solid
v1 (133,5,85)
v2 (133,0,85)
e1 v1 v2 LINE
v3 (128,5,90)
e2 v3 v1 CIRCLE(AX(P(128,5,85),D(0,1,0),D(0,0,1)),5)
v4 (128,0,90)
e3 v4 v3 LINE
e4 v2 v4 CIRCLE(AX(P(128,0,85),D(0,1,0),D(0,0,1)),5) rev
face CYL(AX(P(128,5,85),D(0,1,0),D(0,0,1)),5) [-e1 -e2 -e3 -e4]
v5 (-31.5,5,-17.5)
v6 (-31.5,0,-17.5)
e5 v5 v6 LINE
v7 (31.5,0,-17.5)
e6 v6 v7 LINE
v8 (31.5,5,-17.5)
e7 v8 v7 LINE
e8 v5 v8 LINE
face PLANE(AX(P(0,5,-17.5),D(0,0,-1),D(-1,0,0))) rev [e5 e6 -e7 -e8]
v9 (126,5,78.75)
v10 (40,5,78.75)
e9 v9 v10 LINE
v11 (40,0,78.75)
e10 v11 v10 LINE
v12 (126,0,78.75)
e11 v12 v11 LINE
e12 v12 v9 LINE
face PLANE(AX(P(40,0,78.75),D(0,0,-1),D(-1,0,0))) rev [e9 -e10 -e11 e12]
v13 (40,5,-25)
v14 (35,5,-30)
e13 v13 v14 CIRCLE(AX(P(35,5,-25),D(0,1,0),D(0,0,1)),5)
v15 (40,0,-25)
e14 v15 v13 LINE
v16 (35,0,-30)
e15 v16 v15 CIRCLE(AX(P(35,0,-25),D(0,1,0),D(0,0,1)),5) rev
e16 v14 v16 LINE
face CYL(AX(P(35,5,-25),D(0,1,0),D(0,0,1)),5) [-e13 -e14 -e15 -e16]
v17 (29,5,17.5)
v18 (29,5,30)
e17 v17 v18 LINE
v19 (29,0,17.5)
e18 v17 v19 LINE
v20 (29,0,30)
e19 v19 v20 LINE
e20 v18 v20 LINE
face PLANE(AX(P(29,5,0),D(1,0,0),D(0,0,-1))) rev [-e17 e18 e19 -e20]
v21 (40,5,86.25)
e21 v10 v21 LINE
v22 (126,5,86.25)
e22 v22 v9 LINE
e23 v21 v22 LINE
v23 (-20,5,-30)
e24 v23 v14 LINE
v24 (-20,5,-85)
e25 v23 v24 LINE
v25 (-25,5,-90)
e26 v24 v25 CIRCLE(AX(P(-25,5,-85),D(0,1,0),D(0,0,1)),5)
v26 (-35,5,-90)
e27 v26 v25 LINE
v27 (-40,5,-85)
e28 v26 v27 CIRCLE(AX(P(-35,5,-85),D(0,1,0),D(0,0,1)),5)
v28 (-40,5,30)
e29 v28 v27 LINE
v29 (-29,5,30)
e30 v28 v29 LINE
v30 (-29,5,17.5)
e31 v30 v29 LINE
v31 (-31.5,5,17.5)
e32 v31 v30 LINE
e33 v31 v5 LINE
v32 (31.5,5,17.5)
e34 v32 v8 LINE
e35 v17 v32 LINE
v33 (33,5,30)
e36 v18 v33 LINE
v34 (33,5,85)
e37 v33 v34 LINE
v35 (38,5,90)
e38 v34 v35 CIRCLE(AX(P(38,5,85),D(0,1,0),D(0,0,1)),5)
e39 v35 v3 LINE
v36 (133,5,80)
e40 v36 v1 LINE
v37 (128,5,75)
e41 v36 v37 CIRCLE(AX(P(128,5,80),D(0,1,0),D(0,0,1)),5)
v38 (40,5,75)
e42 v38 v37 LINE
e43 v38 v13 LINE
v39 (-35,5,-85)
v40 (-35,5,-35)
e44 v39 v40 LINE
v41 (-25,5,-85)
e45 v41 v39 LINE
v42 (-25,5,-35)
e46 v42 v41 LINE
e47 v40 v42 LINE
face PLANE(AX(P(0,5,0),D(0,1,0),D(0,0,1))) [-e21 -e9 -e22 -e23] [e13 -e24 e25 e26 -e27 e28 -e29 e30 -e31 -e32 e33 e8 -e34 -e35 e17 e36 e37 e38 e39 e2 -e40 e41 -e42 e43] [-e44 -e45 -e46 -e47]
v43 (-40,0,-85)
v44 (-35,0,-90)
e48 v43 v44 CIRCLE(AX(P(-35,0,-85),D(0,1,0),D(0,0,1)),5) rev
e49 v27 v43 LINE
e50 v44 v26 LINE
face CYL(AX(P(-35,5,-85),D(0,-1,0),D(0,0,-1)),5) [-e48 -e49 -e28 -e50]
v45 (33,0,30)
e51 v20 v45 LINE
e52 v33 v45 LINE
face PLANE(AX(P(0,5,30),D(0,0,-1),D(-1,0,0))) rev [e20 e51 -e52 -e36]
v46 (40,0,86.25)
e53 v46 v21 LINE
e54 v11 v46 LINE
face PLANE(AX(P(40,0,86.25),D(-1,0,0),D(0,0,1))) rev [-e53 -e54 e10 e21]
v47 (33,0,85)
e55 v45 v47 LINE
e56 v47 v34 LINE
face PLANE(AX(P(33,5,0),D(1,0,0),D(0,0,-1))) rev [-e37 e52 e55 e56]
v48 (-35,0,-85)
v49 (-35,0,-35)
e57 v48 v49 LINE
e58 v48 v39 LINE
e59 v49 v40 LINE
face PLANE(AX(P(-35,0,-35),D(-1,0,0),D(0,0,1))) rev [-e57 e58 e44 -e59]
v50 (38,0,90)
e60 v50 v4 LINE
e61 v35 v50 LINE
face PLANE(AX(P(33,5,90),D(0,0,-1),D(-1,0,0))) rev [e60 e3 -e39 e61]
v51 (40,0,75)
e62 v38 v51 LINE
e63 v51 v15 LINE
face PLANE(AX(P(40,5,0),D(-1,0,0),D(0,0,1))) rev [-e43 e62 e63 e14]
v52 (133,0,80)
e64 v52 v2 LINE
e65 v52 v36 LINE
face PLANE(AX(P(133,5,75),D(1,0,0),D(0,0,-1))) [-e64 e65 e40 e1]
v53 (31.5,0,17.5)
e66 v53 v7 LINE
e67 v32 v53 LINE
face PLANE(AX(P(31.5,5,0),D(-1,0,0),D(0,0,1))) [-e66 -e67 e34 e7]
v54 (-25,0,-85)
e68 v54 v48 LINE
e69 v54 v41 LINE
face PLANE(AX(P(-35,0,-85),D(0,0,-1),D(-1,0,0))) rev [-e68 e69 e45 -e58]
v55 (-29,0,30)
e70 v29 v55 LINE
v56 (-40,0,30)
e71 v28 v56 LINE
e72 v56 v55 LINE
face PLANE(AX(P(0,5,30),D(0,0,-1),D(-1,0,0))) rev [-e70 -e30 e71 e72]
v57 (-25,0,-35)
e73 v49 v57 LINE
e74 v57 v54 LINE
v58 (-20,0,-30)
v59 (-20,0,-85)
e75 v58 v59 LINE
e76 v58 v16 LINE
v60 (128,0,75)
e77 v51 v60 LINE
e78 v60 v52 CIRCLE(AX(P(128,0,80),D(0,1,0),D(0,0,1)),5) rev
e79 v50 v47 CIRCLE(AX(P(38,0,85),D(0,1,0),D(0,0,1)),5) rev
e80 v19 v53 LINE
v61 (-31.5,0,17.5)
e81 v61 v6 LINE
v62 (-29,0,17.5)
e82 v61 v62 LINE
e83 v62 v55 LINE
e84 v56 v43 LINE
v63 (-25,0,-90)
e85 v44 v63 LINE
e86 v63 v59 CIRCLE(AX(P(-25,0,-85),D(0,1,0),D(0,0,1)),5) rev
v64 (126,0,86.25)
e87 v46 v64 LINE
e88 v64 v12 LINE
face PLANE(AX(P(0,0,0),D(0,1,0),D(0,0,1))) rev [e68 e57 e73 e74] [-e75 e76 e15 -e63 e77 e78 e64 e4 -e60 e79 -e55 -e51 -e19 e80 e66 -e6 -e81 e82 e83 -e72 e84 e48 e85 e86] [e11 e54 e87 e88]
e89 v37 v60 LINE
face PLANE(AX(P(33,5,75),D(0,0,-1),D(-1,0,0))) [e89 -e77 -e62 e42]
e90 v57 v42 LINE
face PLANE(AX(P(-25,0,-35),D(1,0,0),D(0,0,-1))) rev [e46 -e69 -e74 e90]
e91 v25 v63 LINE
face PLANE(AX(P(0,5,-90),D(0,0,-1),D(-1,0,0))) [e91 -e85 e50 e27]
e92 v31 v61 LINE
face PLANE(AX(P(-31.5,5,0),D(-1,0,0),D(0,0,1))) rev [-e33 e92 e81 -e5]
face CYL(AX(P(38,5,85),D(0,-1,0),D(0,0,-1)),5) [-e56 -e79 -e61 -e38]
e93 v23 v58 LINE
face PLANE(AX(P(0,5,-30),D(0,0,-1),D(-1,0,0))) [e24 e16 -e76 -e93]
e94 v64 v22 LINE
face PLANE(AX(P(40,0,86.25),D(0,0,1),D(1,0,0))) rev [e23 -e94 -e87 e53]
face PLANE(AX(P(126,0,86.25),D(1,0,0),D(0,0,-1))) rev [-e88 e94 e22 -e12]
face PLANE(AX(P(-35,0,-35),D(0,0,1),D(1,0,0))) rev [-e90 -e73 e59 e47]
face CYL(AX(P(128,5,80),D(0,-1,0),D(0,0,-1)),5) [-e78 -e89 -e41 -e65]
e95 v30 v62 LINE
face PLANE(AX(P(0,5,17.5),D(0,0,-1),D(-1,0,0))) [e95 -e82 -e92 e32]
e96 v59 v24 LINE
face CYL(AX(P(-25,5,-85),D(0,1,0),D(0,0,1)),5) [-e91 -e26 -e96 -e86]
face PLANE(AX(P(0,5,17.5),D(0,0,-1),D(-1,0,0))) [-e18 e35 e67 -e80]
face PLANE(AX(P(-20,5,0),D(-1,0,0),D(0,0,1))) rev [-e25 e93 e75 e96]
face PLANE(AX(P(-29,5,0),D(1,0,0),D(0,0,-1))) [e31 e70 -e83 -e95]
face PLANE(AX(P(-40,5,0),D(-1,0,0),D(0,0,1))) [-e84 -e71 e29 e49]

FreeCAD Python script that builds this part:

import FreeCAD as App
import Part
import Sketcher

V = App.Vector
Q = App.Units.Quantity


def edges_at(feature, points):
    """Names of the edges that pass closest to the given points."""
    edges = feature.Shape.Edges
    near = lambda p: min(range(len(edges)), key=lambda i: edges[i].distToShape(Part.Vertex(*p))[0])
    return sorted({f"Edge{near(p) + 1}" for p in points})

doc = App.newDocument("Part")
body = doc.addObject("PartDesign::Body", "Body")

# Sketch on XZ plane
sketch1 = doc.addObject("Sketcher::SketchObject", "Sketch")
body.addObject(sketch1)
sketch1.AttachmentSupport = (doc.XZ_Plane, [""])
sketch1.MapMode = "FlatFace"
sketch1.addGeometry([
    Part.LineSegment(V(-29, 17.5, 0), V(-31.5, 17.5, 0)),  # 0
    Part.LineSegment(V(-31.5, 17.5, 0), V(-31.5, -17.5, 0)),  # 1
    Part.LineSegment(V(-31.5, -17.5, 0), V(31.5, -17.5, 0)),  # 2
    Part.LineSegment(V(31.5, -17.5, 0), V(31.5, 17.5, 0)),  # 3
    Part.LineSegment(V(31.5, 17.5, 0), V(29, 17.5, 0)),  # 4
    Part.LineSegment(V(29, 17.5, 0), V(29, 30, 0)),  # 5
    Part.LineSegment(V(29, 30, 0), V(33, 30, 0)),  # 6
    Part.LineSegment(V(33, 30, 0), V(33, 90, 0)),  # 7
    Part.LineSegment(V(33, 90, 0), V(133, 90, 0)),  # 8
    Part.LineSegment(V(133, 90, 0), V(133, 75, 0)),  # 9
    Part.LineSegment(V(133, 75, 0), V(40, 75, 0)),  # 10
    Part.LineSegment(V(40, 75, 0), V(40, -30, 0)),  # 11
    Part.LineSegment(V(40, -30, 0), V(-20, -30, 0)),  # 12
    Part.LineSegment(V(-20, -30, 0), V(-20, -90, 0)),  # 13
    Part.LineSegment(V(-20, -90, 0), V(-40, -90, 0)),  # 14
    Part.LineSegment(V(-40, -90, 0), V(-40, 30, 0)),  # 15
    Part.LineSegment(V(-40, 30, 0), V(-29, 30, 0)),  # 16
    Part.LineSegment(V(-29, 30, 0), V(-29, 17.5, 0)),  # 17
], False)
sketch1.addConstraint([
    Sketcher.Constraint("Coincident", 0, 2, 1, 1),
    Sketcher.Constraint("Coincident", 1, 2, 2, 1),
    Sketcher.Constraint("Coincident", 2, 2, 3, 1),
    Sketcher.Constraint("Coincident", 3, 2, 4, 1),
    Sketcher.Constraint("Coincident", 4, 2, 5, 1),
    Sketcher.Constraint("Coincident", 5, 2, 6, 1),
    Sketcher.Constraint("Coincident", 6, 2, 7, 1),
    Sketcher.Constraint("Coincident", 7, 2, 8, 1),
    Sketcher.Constraint("Coincident", 8, 2, 9, 1),
    Sketcher.Constraint("Coincident", 9, 2, 10, 1),
    Sketcher.Constraint("Coincident", 10, 2, 11, 1),
    Sketcher.Constraint("Coincident", 11, 2, 12, 1),
    Sketcher.Constraint("Coincident", 12, 2, 13, 1),
    Sketcher.Constraint("Coincident", 13, 2, 14, 1),
    Sketcher.Constraint("Coincident", 14, 2, 15, 1),
    Sketcher.Constraint("Coincident", 15, 2, 16, 1),
    Sketcher.Constraint("Coincident", 16, 2, 17, 1),
    Sketcher.Constraint("Coincident", 17, 2, 0, 1),
    Sketcher.Constraint("Horizontal", 0),
    Sketcher.Constraint("Vertical", 1),
    Sketcher.Constraint("Horizontal", 2),
    Sketcher.Constraint("Vertical", 3),
    Sketcher.Constraint("Horizontal", 4),
    Sketcher.Constraint("Vertical", 5),
    Sketcher.Constraint("Horizontal", 6),
    Sketcher.Constraint("Vertical", 7),
    Sketcher.Constraint("Horizontal", 8),
    Sketcher.Constraint("Vertical", 9),
    Sketcher.Constraint("Horizontal", 10),
    Sketcher.Constraint("Vertical", 11),
    Sketcher.Constraint("Horizontal", 12),
    Sketcher.Constraint("Vertical", 13),
    Sketcher.Constraint("Horizontal", 14),
    Sketcher.Constraint("Vertical", 15),
    Sketcher.Constraint("Horizontal", 16),
    Sketcher.Constraint("Vertical", 17),
    Sketcher.Constraint("Symmetric", 0, 2, 2, 2, -1, 1),
    Sketcher.Constraint("Symmetric", 11, 2, 15, 2, -1, 1),
    Sketcher.Constraint("Symmetric", 5, 2, 16, 2, -2),
    Sketcher.Constraint("Horizontal", 0, 2, 3, 2),
    Sketcher.Constraint("Equal", 12, 7),
    Sketcher.Constraint("Equal", 7, 13),
    Sketcher.Constraint("DistanceX", 2, 1, 2, 2, Q("63 mm")),
    Sketcher.Constraint("DistanceX", 6, 1, 6, 2, Q("4 mm")),
    Sketcher.Constraint("DistanceX", 8, 1, 8, 2, Q("100 mm")),
    Sketcher.Constraint("DistanceX", 10, 2, 10, 1, Q("93 mm")),
    Sketcher.Constraint("DistanceX", 12, 2, 12, 1, Q("60 mm")),
    Sketcher.Constraint("DistanceX", 14, 2, 14, 1, Q("20 mm")),
    Sketcher.Constraint("DistanceY", 1, 2, 1, 1, Q("35 mm")),
    Sketcher.Constraint("DistanceY", 9, 2, 9, 1, Q("15 mm")),
    Sketcher.Constraint("DistanceY", 11, 2, 11, 1, Q("105 mm")),
])
pad1 = doc.addObject("PartDesign::Pad", "Pad")
body.addObject(pad1)
pad1.Profile = sketch1
pad1.Length = 5
pad1.Reversed = True
doc.recompute()

fillet = doc.addObject("PartDesign::Fillet", "Fillet")
body.addObject(fillet)
fillet.Base = (pad1, edges_at(pad1, [
    (-40, 2.5, -90),
    (-20, 2.5, -90),
    (40, 2.5, -30),
    (33, 2.5, 90),
    (133, 2.5, 90),
    (133, 2.5, 75),
]))
fillet.Radius = 5

# Sketch on XZ plane
sketch2 = doc.addObject("Sketcher::SketchObject", "Sketch001")
body.addObject(sketch2)
sketch2.AttachmentSupport = (doc.XZ_Plane, [""])
sketch2.MapMode = "FlatFace"
sketch2.AttachmentOffset = App.Placement(V(0, 0, -5), App.Rotation())
sketch2.addGeometry([
    Part.LineSegment(V(40, 79, 0), V(40, 86, 0)),  # 0
    Part.LineSegment(V(40, 86, 0), V(126, 86, 0)),  # 1
    Part.LineSegment(V(126, 86, 0), V(126, 79, 0)),  # 2
    Part.LineSegment(V(126, 79, 0), V(40, 79, 0)),  # 3
    Part.LineSegment(V(-35, -85, 0), V(-35, -35, 0)),  # 4
    Part.LineSegment(V(-35, -35, 0), V(-25, -35, 0)),  # 5
    Part.LineSegment(V(-25, -35, 0), V(-25, -85, 0)),  # 6
    Part.LineSegment(V(-25, -85, 0), V(-35, -85, 0)),  # 7
], False)
sketch2.addConstraint([
    Sketcher.Constraint("Coincident", 0, 2, 1, 1),
    Sketcher.Constraint("Coincident", 1, 2, 2, 1),
    Sketcher.Constraint("Coincident", 2, 2, 3, 1),
    Sketcher.Constraint("Coincident", 3, 2, 0, 1),
    Sketcher.Constraint("Coincident", 4, 2, 5, 1),
    Sketcher.Constraint("Coincident", 5, 2, 6, 1),
    Sketcher.Constraint("Coincident", 6, 2, 7, 1),
    Sketcher.Constraint("Coincident", 7, 2, 4, 1),
    Sketcher.Constraint("Vertical", 0),
    Sketcher.Constraint("Horizontal", 1),
    Sketcher.Constraint("Vertical", 2),
    Sketcher.Constraint("Horizontal", 3),
    Sketcher.Constraint("Vertical", 4),
    Sketcher.Constraint("Horizontal", 5),
    Sketcher.Constraint("Vertical", 6),
    Sketcher.Constraint("Horizontal", 7),
    Sketcher.Constraint("DistanceX", 1, 1, 1, 2, Q("86 mm")),
    Sketcher.Constraint("DistanceX", 5, 1, 5, 2, Q("10 mm")),
    Sketcher.Constraint("DistanceY", 4, 1, 4, 2, Q("50 mm")),
    Sketcher.Constraint("DistanceY", 0, 1, 0, 2, Q("7.5 mm")),
    Sketcher.Constraint("DistanceX", -1, 1, 0, 2, Q("40 mm")),
    Sketcher.Constraint("DistanceX", 4, 2, -1, 1, Q("35 mm")),
    Sketcher.Constraint("DistanceY", 4, 2, -1, 1, Q("35 mm")),
    Sketcher.Constraint("DistanceY", -1, 1, 0, 2, Q("86.25 mm")),
])
pocket1 = doc.addObject("PartDesign::Pocket", "Pocket")
body.addObject(pocket1)
pocket1.Profile = sketch2
pocket1.Type = "ThroughAll"
pocket1.Reversed = True

doc.recompute()
